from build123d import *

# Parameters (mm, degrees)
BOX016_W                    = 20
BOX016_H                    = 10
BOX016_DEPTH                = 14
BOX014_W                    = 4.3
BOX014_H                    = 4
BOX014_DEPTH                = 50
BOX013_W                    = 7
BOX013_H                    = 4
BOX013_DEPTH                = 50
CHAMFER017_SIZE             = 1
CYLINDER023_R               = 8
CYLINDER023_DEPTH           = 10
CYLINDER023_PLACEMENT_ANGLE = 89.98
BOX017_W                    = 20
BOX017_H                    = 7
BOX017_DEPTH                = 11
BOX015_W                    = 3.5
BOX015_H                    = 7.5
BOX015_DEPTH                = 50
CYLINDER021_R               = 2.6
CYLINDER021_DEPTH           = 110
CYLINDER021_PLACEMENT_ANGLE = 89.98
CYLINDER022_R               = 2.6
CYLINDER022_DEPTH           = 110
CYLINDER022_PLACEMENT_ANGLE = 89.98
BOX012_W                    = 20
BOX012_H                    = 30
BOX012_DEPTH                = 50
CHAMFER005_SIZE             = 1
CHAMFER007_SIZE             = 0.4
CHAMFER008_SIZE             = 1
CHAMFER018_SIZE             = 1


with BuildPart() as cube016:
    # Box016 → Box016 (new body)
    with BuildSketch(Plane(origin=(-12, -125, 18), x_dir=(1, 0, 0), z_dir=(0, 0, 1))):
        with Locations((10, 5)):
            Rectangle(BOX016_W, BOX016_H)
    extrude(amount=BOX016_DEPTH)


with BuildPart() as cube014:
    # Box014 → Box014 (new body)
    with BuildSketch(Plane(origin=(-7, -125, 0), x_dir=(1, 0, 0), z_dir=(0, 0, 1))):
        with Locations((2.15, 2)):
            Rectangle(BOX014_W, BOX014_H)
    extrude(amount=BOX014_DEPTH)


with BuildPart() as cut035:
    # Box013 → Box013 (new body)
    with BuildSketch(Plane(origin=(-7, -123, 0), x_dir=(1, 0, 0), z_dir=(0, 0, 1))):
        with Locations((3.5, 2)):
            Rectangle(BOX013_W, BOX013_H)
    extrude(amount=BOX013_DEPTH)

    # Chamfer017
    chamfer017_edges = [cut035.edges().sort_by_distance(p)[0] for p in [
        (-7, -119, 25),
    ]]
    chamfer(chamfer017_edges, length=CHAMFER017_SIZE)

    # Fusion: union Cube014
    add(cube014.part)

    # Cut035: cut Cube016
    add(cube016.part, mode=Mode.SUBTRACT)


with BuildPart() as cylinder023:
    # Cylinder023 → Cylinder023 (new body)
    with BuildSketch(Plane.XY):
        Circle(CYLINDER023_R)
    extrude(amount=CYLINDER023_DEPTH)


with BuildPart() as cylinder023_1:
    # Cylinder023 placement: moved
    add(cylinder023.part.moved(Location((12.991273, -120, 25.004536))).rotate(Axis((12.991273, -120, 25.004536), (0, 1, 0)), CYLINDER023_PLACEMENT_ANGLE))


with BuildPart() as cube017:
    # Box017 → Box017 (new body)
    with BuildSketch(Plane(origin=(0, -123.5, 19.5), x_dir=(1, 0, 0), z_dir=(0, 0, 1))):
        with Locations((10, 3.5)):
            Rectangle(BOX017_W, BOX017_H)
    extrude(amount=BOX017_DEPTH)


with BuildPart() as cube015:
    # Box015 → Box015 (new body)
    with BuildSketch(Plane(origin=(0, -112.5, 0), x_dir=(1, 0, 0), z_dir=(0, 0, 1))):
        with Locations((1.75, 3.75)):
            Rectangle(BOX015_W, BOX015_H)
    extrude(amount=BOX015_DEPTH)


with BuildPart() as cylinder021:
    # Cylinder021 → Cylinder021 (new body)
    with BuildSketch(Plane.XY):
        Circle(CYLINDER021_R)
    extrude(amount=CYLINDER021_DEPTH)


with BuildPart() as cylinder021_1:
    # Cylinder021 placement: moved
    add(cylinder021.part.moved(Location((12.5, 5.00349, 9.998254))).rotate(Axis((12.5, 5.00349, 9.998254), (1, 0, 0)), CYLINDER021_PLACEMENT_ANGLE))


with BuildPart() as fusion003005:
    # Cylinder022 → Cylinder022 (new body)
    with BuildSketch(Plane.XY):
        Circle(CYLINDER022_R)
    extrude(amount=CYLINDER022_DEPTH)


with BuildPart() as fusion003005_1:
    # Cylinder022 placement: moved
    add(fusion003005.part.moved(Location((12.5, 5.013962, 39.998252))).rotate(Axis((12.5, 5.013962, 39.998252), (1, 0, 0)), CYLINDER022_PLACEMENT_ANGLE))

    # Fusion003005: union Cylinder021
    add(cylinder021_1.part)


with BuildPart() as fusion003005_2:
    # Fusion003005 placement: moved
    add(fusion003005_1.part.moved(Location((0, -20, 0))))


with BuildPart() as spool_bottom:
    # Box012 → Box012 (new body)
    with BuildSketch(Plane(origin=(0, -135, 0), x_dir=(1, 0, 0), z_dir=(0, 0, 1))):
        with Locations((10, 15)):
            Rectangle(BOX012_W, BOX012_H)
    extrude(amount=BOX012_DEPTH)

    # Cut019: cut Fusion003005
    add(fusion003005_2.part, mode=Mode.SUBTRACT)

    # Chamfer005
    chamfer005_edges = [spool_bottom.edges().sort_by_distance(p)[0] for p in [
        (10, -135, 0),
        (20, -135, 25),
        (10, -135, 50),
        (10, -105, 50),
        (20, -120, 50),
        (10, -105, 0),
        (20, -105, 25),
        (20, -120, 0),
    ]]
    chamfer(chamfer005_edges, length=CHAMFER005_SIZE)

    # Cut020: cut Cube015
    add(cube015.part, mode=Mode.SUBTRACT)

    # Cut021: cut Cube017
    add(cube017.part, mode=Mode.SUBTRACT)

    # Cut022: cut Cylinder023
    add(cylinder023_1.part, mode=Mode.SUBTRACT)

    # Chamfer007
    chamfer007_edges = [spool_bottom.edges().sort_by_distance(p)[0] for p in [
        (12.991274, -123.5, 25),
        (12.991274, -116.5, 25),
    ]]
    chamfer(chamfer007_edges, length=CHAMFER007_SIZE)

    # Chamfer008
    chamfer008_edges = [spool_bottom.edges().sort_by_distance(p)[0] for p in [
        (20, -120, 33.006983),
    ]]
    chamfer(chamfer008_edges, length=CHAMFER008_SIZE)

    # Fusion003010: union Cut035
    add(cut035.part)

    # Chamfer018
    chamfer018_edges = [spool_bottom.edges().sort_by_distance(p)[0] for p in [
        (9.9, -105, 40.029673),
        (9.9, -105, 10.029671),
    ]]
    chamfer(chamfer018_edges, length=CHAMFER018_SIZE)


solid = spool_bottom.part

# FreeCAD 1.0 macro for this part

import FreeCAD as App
import Part
import Sketcher
from FreeCAD import Vector


def edges_at(feature, points):
    """Names of the edges that pass closest to the given points."""
    edges = feature.Shape.Edges
    near = lambda p: min(range(len(edges)), key=lambda i: edges[i].distToShape(Part.Vertex(*p))[0])
    return sorted({f"Edge{near(p) + 1}" for p in points})


def add_polygon(sketch, points):
    """Adds a closed chain of lines whose ends are joined by coincident constraints."""
    first, n = sketch.GeometryCount, len(points)
    for a, b in zip(points, points[1:] + points[:1]):
        sketch.addGeometry(Part.LineSegment(App.Vector(*a, 0), App.Vector(*b, 0)), False)
    for i in range(n):
        sketch.addConstraint(Sketcher.Constraint("Coincident", first + i, 2, first + (i + 1) % n, 1))

doc = App.newDocument("Part")
body = doc.addObject("PartDesign::Body", "Body")

sketch1 = body.newObject("Sketcher::SketchObject", "Sketch")
sketch1.AttachmentSupport = (doc.getObject("XY_Plane"), [""])
sketch1.MapMode = "FlatFace"
sketch1.AttachmentOffset = App.Placement(Vector(0, 0, 18), App.Rotation())
add_polygon(sketch1, [(-12, -115), (-12, -125), (8, -125), (8, -115)])
sketch1.addConstraint(Sketcher.Constraint("Vertical", 0))
sketch1.addConstraint(Sketcher.Constraint("Horizontal", 1))
sketch1.addConstraint(Sketcher.Constraint("Vertical", 2))
sketch1.addConstraint(Sketcher.Constraint("Horizontal", 3))
sketch1.addConstraint(Sketcher.Constraint("DistanceX", 1, 1, 1, 2, 20.0))
sketch1.addConstraint(Sketcher.Constraint("DistanceY", 0, 2, 0, 1, 10.0))
sketch1.addConstraint(Sketcher.Constraint("DistanceX", 0, 2, -1, 1, 12.0))
sketch1.addConstraint(Sketcher.Constraint("DistanceY", 0, 2, -1, 1, 125.0))
pad1 = body.newObject("PartDesign::Pad", "Pad")
pad1.Profile = sketch1
pad1.Length = 14
body2 = doc.addObject("PartDesign::Body", "Body001")

sketch2 = body2.newObject("Sketcher::SketchObject", "Sketch001")
sketch2.AttachmentSupport = (doc.getObject("XY_Plane001"), [""])
sketch2.MapMode = "FlatFace"
add_polygon(sketch2, [(-7, -121), (-7, -125), (-2.7, -125), (-2.7, -121)])
sketch2.addConstraint(Sketcher.Constraint("Vertical", 0))
sketch2.addConstraint(Sketcher.Constraint("Horizontal", 1))
sketch2.addConstraint(Sketcher.Constraint("Vertical", 2))
sketch2.addConstraint(Sketcher.Constraint("Horizontal", 3))
sketch2.addConstraint(Sketcher.Constraint("DistanceY", 0, 2, 0, 1, 4.0))
sketch2.addConstraint(Sketcher.Constraint("DistanceX", 1, 1, 1, 2, 4.3))
sketch2.addConstraint(Sketcher.Constraint("DistanceX", 0, 2, -1, 1, 7.0))
sketch2.addConstraint(Sketcher.Constraint("DistanceY", 0, 2, -1, 1, 125.0))
pad2 = body2.newObject("PartDesign::Pad", "Pad001")
pad2.Profile = sketch2
pad2.Length = 50
body3 = doc.addObject("PartDesign::Body", "Body002")
body3.AllowCompound = True

sketch3 = body3.newObject("Sketcher::SketchObject", "Sketch002")
sketch3.AttachmentSupport = (doc.getObject("XY_Plane002"), [""])
sketch3.MapMode = "FlatFace"
add_polygon(sketch3, [(-7, -119), (-7, -123), (0, -123), (0, -119)])
sketch3.addConstraint(Sketcher.Constraint("Vertical", 0))
sketch3.addConstraint(Sketcher.Constraint("Horizontal", 1))
sketch3.addConstraint(Sketcher.Constraint("Vertical", 2))
sketch3.addConstraint(Sketcher.Constraint("Horizontal", 3))
sketch3.addConstraint(Sketcher.Constraint("PointOnObject", 1, 2, -2))
sketch3.addConstraint(Sketcher.Constraint("DistanceX", 1, 1, 1, 2, 7.0))
sketch3.addConstraint(Sketcher.Constraint("DistanceY", 0, 2, 0, 1, 4.0))
sketch3.addConstraint(Sketcher.Constraint("DistanceY", 0, 2, -1, 1, 123.0))
pad3 = body3.newObject("PartDesign::Pad", "Pad002")
pad3.Profile = sketch3
pad3.Length = 50
doc.recompute()

chamfer = body3.newObject("PartDesign::Chamfer", "Chamfer")
chamfer.Base = (pad3, edges_at(pad3, [(-7, -119, 25)]))
chamfer.Size = 1
doc.recompute()

boolean = body3.newObject("PartDesign::Boolean", "Boolean")
boolean.Type = "Fuse"
boolean.addObjects([body2])
doc.recompute()

boolean2 = body3.newObject("PartDesign::Boolean", "Boolean001")
boolean2.Type = "Cut"
boolean2.addObjects([body])
body4 = doc.addObject("PartDesign::Body", "Body003")

sketch4 = body4.newObject("Sketcher::SketchObject", "Sketch003")
sketch4.AttachmentSupport = (doc.getObject("XY_Plane003"), [""])
sketch4.MapMode = "FlatFace"
sketch4.addGeometry(Part.Circle(Vector(0, 0, 0), Vector(0, 0, 1), 8), False)
sketch4.addConstraint(Sketcher.Constraint("Coincident", 0, 3, -1, 1))
sketch4.addConstraint(Sketcher.Constraint("Diameter", 0, 16.0))
pad4 = body4.newObject("PartDesign::Pad", "Pad003")
pad4.Profile = sketch4
pad4.Length = 10
body5 = doc.addObject("PartDesign::Body", "Body004")
doc.recompute()

body4.Placement = App.Placement(Vector(12.991273, -120, 25.004536), App.Rotation(Vector(0, 1, 0), 89.98))
boolean3 = body5.newObject("PartDesign::Boolean", "Boolean002")
boolean3.Type = "Fuse"
boolean3.addObjects([body4])
body6 = doc.addObject("PartDesign::Body", "Body005")

sketch5 = body6.newObject("Sketcher::SketchObject", "Sketch004")
sketch5.AttachmentSupport = (doc.getObject("XY_Plane005"), [""])
sketch5.MapMode = "FlatFace"
sketch5.AttachmentOffset = App.Placement(Vector(0, 0, 19.5), App.Rotation())
add_polygon(sketch5, [(0, -116), (0, -124), (20, -124), (20, -116)])
sketch5.addConstraint(Sketcher.Constraint("Vertical", 0))
sketch5.addConstraint(Sketcher.Constraint("Horizontal", 1))
sketch5.addConstraint(Sketcher.Constraint("Vertical", 2))
sketch5.addConstraint(Sketcher.Constraint("Horizontal", 3))
sketch5.addConstraint(Sketcher.Constraint("PointOnObject", 0, 2, -2))
sketch5.addConstraint(Sketcher.Constraint("DistanceX", 1, 1, 1, 2, 20.0))
sketch5.addConstraint(Sketcher.Constraint("DistanceY", 0, 2, 0, 1, 7.0))
sketch5.addConstraint(Sketcher.Constraint("DistanceY", 0, 2, -1, 1, 123.5))
pad5 = body6.newObject("PartDesign::Pad", "Pad004")
pad5.Profile = sketch5
pad5.Length = 11
body7 = doc.addObject("PartDesign::Body", "Body006")

sketch6 = body7.newObject("Sketcher::SketchObject", "Sketch005")
sketch6.AttachmentSupport = (doc.getObject("XY_Plane006"), [""])
sketch6.MapMode = "FlatFace"
add_polygon(sketch6, [(0, -105), (0, -112.5), (3.5, -112.5), (3.5, -105)])
sketch6.addConstraint(Sketcher.Constraint("Vertical", 0))
sketch6.addConstraint(Sketcher.Constraint("Horizontal", 1))
sketch6.addConstraint(Sketcher.Constraint("Vertical", 2))
sketch6.addConstraint(Sketcher.Constraint("Horizontal", 3))
sketch6.addConstraint(Sketcher.Constraint("PointOnObject", 0, 2, -2))
sketch6.addConstraint(Sketcher.Constraint("DistanceX", 1, 1, 1, 2, 3.5))
sketch6.addConstraint(Sketcher.Constraint("DistanceY", 0, 2, 0, 1, 7.5))
sketch6.addConstraint(Sketcher.Constraint("DistanceY", 2, 2, -1, 1, 105.0))
pad6 = body7.newObject("PartDesign::Pad", "Pad005")
pad6.Profile = sketch6
pad6.Length = 50
body8 = doc.addObject("PartDesign::Body", "Body007")

sketch7 = body8.newObject("Sketcher::SketchObject", "Sketch006")
sketch7.AttachmentSupport = (doc.getObject("XY_Plane007"), [""])
sketch7.MapMode = "FlatFace"
sketch7.addGeometry(Part.Circle(Vector(0, 0, 0), Vector(0, 0, 1), 2.6), False)
sketch7.addConstraint(Sketcher.Constraint("Coincident", 0, 3, -1, 1))
sketch7.addConstraint(Sketcher.Constraint("Diameter", 0, 5.2))
pad7 = body8.newObject("PartDesign::Pad", "Pad006")
pad7.Profile = sketch7
pad7.Length = 110
body9 = doc.addObject("PartDesign::Body", "Body008")
doc.recompute()

body8.Placement = App.Placement(Vector(12.5, 5.00349, 9.998254), App.Rotation(Vector(1, 0, 0), 89.98))
boolean4 = body9.newObject("PartDesign::Boolean", "Boolean003")
boolean4.Type = "Fuse"
boolean4.addObjects([body8])
body10 = doc.addObject("PartDesign::Body", "Body009")

sketch8 = body10.newObject("Sketcher::SketchObject", "Sketch007")
sketch8.AttachmentSupport = (doc.getObject("XY_Plane009"), [""])
sketch8.MapMode = "FlatFace"
sketch8.addGeometry(Part.Circle(Vector(0, 0, 0), Vector(0, 0, 1), 2.6), False)
sketch8.addConstraint(Sketcher.Constraint("Coincident", 0, 3, -1, 1))
sketch8.addConstraint(Sketcher.Constraint("Diameter", 0, 5.2))
pad8 = body10.newObject("PartDesign::Pad", "Pad007")
pad8.Profile = sketch8
pad8.Length = 110
body11 = doc.addObject("PartDesign::Body", "Body010")
body11.AllowCompound = True
doc.recompute()

body10.Placement = App.Placement(Vector(12.5, 5.013962, 39.998252), App.Rotation(Vector(1, 0, 0), 89.98))
boolean5 = body11.newObject("PartDesign::Boolean", "Boolean004")
boolean5.Type = "Fuse"
boolean5.addObjects([body10])
doc.recompute()

boolean6 = body11.newObject("PartDesign::Boolean", "Boolean005")
boolean6.Type = "Fuse"
boolean6.addObjects([body9])
body12 = doc.addObject("PartDesign::Body", "Body011")
body12.AllowCompound = True
doc.recompute()

body11.Placement = App.Placement(Vector(0, -20, 0), App.Rotation(Vector(0, 0, 1), 0))
boolean7 = body12.newObject("PartDesign::Boolean", "Boolean006")
boolean7.Type = "Fuse"
boolean7.addObjects([body11])
body13 = doc.addObject("PartDesign::Body", "Body012")

sketch9 = body13.newObject("Sketcher::SketchObject", "Sketch008")
sketch9.AttachmentSupport = (doc.getObject("XY_Plane012"), [""])
sketch9.MapMode = "FlatFace"
add_polygon(sketch9, [(0, -105), (0, -135), (20, -135), (20, -105)])
sketch9.addConstraint(Sketcher.Constraint("Vertical", 0))
sketch9.addConstraint(Sketcher.Constraint("Horizontal", 1))
sketch9.addConstraint(Sketcher.Constraint("Vertical", 2))
sketch9.addConstraint(Sketcher.Constraint("Horizontal", 3))
sketch9.addConstraint(Sketcher.Constraint("PointOnObject", 0, 2, -2))
sketch9.addConstraint(Sketcher.Constraint("DistanceX", 1, 1, 1, 2, 20.0))
sketch9.addConstraint(Sketcher.Constraint("DistanceY", 0, 2, 0, 1, 30.0))
sketch9.addConstraint(Sketcher.Constraint("DistanceY", 0, 2, -1, 1, 135.0))
pad9 = body13.newObject("PartDesign::Pad", "Pad008")
pad9.Profile = sketch9
pad9.Length = 50
doc.recompute()

boolean8 = body13.newObject("PartDesign::Boolean", "Boolean007")
boolean8.Type = "Cut"
boolean8.addObjects([body12])
doc.recompute()

chamfer2 = body13.newObject("PartDesign::Chamfer", "Chamfer001")
chamfer2.Base = (boolean8, edges_at(boolean8, [
    (10, -135, 0),
    (20, -135, 25),
    (10, -135, 50),
    (10, -105, 50),
    (20, -120, 50),
    (10, -105, 0),
    (20, -105, 25),
    (20, -120, 0),
]))
chamfer2.Size = 1
doc.recompute()

boolean9 = body13.newObject("PartDesign::Boolean", "Boolean008")
boolean9.Type = "Cut"
boolean9.addObjects([body7])
doc.recompute()

boolean10 = body13.newObject("PartDesign::Boolean", "Boolean009")
boolean10.Type = "Cut"
boolean10.addObjects([body6])
doc.recompute()

boolean11 = body13.newObject("PartDesign::Boolean", "Boolean010")
boolean11.Type = "Cut"
boolean11.addObjects([body5])
doc.recompute()

chamfer3 = body13.newObject("PartDesign::Chamfer", "Chamfer002")
chamfer3.Base = (boolean11, edges_at(boolean11, [(12.991, -123.5, 25), (12.991, -116.5, 25)]))
chamfer3.Size = 0.4
doc.recompute()

chamfer4 = body13.newObject("PartDesign::Chamfer", "Chamfer003")
chamfer4.Base = (chamfer3, edges_at(chamfer3, [(20, -120, 33.007)]))
chamfer4.Size = 1
doc.recompute()

boolean12 = body13.newObject("PartDesign::Boolean", "Boolean011")
boolean12.Type = "Fuse"
boolean12.addObjects([body3])
doc.recompute()

chamfer5 = body13.newObject("PartDesign::Chamfer", "Chamfer004")
chamfer5.Base = (boolean12, edges_at(boolean12, [(9.9, -105, 40.03), (9.9, -105, 10.03)]))
chamfer5.Size = 1

doc.recompute()
